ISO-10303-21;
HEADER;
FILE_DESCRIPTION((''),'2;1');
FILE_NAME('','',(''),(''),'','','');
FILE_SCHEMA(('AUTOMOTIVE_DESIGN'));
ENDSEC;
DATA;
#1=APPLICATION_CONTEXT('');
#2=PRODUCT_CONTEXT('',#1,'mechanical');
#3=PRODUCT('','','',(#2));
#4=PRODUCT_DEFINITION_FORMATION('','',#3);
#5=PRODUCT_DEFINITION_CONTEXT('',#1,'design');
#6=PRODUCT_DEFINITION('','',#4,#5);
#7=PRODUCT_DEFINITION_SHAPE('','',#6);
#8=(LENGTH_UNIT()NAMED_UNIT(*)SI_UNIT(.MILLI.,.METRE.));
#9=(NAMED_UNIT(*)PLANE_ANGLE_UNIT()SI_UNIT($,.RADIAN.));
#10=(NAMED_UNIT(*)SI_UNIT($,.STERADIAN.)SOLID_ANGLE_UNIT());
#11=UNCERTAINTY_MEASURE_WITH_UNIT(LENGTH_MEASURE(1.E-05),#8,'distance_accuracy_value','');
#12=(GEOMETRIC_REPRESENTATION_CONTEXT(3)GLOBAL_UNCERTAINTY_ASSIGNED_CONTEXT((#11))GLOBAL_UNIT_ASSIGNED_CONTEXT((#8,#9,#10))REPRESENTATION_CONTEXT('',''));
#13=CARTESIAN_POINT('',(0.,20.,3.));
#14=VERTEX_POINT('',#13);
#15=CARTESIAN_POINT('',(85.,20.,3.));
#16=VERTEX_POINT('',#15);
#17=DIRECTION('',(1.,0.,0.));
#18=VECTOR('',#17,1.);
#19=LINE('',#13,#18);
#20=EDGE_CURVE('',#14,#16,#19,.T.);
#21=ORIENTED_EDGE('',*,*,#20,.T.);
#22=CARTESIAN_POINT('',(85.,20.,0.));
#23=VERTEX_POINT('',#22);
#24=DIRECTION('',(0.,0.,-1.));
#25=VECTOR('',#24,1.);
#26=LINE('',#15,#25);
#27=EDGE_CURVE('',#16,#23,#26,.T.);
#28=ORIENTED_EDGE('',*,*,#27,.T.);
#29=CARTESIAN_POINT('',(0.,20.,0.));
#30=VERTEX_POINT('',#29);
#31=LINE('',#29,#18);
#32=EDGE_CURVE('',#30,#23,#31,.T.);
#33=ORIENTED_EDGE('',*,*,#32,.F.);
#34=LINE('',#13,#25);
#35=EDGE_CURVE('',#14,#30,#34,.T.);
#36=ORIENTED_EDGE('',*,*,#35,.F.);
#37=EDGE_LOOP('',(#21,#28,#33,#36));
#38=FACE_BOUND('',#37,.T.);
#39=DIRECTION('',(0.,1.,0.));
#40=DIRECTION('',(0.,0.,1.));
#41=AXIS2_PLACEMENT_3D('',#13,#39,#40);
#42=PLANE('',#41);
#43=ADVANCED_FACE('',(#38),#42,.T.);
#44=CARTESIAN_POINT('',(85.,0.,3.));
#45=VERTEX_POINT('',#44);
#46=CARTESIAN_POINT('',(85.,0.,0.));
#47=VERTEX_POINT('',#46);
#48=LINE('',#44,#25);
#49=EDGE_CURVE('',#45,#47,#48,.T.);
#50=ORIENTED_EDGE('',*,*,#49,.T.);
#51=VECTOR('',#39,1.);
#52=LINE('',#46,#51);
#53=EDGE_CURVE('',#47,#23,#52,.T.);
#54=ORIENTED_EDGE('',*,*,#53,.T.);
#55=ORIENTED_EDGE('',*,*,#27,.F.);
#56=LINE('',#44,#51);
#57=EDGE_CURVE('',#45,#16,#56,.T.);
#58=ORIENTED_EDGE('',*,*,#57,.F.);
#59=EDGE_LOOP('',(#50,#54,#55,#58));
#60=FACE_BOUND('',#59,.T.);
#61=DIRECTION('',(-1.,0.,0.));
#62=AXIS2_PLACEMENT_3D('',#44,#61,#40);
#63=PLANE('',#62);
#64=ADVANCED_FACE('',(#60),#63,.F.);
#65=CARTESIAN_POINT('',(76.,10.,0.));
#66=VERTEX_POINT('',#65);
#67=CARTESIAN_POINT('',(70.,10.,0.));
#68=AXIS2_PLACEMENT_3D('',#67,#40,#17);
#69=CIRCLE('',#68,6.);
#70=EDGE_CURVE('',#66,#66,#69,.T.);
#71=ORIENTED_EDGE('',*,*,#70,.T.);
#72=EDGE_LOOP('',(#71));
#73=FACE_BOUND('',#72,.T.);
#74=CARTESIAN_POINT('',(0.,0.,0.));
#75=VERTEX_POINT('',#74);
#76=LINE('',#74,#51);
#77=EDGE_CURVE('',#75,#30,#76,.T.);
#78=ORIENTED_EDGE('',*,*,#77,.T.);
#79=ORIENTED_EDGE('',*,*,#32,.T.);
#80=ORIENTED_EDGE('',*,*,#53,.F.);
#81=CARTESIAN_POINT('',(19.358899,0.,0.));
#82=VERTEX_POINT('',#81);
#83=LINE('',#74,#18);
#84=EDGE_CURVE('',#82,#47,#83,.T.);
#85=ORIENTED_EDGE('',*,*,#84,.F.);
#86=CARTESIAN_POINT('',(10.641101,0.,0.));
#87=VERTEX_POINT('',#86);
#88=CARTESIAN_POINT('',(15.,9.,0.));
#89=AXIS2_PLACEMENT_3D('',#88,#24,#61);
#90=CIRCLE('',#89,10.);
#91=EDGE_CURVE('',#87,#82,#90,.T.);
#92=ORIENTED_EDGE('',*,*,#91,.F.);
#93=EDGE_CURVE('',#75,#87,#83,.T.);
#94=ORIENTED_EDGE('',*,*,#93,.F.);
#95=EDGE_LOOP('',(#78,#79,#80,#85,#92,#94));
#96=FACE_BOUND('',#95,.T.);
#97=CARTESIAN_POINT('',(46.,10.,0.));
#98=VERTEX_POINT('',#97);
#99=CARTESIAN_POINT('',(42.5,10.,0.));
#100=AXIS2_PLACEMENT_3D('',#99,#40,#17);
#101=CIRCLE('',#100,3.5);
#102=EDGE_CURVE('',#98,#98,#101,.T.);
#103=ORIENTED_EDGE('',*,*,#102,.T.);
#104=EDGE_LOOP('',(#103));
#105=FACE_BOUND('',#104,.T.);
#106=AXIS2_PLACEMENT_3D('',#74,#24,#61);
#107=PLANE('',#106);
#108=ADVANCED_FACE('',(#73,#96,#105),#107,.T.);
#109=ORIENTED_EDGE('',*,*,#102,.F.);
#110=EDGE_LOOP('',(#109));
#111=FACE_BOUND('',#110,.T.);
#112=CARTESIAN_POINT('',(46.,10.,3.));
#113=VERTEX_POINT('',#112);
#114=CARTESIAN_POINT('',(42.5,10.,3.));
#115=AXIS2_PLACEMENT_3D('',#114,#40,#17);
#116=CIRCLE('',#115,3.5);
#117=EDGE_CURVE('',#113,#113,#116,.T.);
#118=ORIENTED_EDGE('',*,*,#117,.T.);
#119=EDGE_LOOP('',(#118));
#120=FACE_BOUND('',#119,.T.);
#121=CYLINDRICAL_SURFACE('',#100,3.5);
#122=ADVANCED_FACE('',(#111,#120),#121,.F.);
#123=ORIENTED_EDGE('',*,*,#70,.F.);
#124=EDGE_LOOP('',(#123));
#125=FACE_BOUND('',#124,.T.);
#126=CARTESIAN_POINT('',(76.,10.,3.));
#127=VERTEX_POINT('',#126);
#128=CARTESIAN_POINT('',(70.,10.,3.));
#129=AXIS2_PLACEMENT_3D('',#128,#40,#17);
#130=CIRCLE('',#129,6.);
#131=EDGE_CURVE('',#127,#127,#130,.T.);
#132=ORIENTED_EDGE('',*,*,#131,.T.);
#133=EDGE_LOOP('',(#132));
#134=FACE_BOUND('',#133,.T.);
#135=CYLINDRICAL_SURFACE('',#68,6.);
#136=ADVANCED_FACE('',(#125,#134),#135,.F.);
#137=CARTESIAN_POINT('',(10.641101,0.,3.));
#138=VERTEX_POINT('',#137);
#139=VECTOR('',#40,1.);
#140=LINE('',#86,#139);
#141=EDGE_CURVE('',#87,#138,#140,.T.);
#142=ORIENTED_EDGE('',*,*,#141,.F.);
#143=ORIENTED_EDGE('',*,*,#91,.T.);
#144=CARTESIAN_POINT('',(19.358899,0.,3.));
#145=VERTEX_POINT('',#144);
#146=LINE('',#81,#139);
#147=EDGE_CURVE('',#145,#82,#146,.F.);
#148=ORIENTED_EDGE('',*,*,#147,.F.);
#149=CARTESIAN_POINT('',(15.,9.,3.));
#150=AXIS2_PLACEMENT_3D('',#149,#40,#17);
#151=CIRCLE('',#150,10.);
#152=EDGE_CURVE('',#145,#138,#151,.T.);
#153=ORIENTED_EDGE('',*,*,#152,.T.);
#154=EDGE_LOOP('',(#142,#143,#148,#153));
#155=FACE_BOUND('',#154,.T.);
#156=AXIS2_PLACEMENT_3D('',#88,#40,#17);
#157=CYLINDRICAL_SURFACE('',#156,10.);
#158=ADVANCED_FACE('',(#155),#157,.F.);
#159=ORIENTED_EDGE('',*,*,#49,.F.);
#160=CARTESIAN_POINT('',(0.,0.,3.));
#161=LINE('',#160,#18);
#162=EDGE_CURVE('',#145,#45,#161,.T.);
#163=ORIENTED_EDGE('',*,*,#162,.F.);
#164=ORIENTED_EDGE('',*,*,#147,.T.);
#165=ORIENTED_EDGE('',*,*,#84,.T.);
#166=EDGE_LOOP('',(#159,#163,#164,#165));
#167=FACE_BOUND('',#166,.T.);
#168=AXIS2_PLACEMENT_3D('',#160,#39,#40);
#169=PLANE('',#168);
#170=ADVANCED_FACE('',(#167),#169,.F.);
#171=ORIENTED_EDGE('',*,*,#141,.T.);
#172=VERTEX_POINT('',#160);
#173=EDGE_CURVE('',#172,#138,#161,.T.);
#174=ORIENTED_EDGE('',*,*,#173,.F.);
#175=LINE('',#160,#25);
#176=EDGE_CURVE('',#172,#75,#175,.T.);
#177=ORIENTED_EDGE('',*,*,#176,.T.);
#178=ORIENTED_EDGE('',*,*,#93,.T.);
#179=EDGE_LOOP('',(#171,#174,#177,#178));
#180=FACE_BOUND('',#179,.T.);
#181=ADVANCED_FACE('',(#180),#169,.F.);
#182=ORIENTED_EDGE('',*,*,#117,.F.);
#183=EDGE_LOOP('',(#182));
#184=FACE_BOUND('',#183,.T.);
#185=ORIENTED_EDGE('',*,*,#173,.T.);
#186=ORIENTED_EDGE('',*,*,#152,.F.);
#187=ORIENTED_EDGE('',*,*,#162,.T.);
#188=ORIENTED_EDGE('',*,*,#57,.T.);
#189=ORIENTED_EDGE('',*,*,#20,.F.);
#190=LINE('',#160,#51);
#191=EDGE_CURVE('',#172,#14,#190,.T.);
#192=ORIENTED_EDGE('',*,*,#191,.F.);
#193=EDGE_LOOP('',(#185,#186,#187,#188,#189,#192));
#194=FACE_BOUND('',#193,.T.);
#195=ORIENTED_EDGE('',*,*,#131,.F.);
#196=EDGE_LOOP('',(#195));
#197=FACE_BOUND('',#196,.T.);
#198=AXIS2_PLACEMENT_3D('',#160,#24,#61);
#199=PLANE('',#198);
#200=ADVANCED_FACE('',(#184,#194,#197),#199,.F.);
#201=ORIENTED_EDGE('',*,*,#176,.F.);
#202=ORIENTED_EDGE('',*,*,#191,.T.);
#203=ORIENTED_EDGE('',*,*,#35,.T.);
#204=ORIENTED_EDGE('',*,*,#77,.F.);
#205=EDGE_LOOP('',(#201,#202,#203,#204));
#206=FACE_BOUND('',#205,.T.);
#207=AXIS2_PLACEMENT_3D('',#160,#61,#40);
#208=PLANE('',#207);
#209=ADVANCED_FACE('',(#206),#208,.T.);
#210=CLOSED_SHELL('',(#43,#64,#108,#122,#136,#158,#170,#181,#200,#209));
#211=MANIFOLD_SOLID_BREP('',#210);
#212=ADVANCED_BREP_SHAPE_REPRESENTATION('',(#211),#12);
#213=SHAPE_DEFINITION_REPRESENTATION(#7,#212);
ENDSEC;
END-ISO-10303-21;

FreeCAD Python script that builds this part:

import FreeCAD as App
import Part
import Sketcher
from FreeCAD import Vector


def add_polygon(sketch, points):
    """Adds a closed chain of lines whose ends are joined by coincident constraints."""
    first, n = sketch.GeometryCount, len(points)
    for a, b in zip(points, points[1:] + points[:1]):
        sketch.addGeometry(Part.LineSegment(App.Vector(*a, 0), App.Vector(*b, 0)), False)
    for i in range(n):
        sketch.addConstraint(Sketcher.Constraint("Coincident", first + i, 2, first + (i + 1) % n, 1))

doc = App.newDocument("Part")
body = doc.addObject("PartDesign::Body", "Body")

# Sketch on XY plane
sketch1 = doc.addObject("Sketcher::SketchObject", "Sketch")
body.addObject(sketch1)
sketch1.AttachmentSupport = (doc.XY_Plane, [""])
sketch1.MapMode = "FlatFace"
add_polygon(sketch1, [(0, 20), (0, 0), (85, 0), (85, 20)])  # lines 0-3
sketch1.addConstraint([
    Sketcher.Constraint("Vertical", 0),
    Sketcher.Constraint("Horizontal", 1),
    Sketcher.Constraint("Vertical", 2),
    Sketcher.Constraint("Horizontal", 3),
    Sketcher.Constraint("Coincident", 0, 2, -1, 1),
    Sketcher.Constraint("DistanceX", 1, 1, 1, 2, 85.0),
    Sketcher.Constraint("DistanceY", 0, 2, 0, 1, 20.0),
])
pad1 = doc.addObject("PartDesign::Pad", "Pad")
body.addObject(pad1)
pad1.Profile = sketch1
pad1.Length = 3

# Sketch on XY plane
sketch2 = doc.addObject("Sketcher::SketchObject", "Sketch001")
body.addObject(sketch2)
sketch2.AttachmentSupport = (doc.XY_Plane, [""])
sketch2.MapMode = "FlatFace"
sketch2.AttachmentOffset = App.Placement(Vector(0, 0, 3), App.Rotation())
sketch2.addGeometry([
    Part.Circle(Vector(42.5, 10, 0), Vector(0, 0, 1), 3.5),
    Part.Circle(Vector(70, 10, 0), Vector(0, 0, 1), 6),
    Part.Circle(Vector(15, 9, 0), Vector(0, 0, 1), 10),
], False)
sketch2.addConstraint([
    Sketcher.Constraint("Horizontal", 0, 3, 1, 3),
    Sketcher.Constraint("Diameter", 0, 7.0),
    Sketcher.Constraint("Diameter", 1, 12.0),
    Sketcher.Constraint("Diameter", 2, 20.0),
    Sketcher.Constraint("DistanceY", -1, 1, 0, 3, 10.0),
    Sketcher.Constraint("DistanceX", -1, 1, 1, 3, 70.0),
    Sketcher.Constraint("DistanceX", -1, 1, 2, 3, 15.0),
    Sketcher.Constraint("DistanceY", -1, 1, 2, 3, 9.0),
    Sketcher.Constraint("DistanceX", -1, 1, 0, 3, 42.5),
])
pocket1 = doc.addObject("PartDesign::Pocket", "Pocket")
body.addObject(pocket1)
pocket1.Profile = sketch2
pocket1.Type = "ThroughAll"

doc.recompute()
